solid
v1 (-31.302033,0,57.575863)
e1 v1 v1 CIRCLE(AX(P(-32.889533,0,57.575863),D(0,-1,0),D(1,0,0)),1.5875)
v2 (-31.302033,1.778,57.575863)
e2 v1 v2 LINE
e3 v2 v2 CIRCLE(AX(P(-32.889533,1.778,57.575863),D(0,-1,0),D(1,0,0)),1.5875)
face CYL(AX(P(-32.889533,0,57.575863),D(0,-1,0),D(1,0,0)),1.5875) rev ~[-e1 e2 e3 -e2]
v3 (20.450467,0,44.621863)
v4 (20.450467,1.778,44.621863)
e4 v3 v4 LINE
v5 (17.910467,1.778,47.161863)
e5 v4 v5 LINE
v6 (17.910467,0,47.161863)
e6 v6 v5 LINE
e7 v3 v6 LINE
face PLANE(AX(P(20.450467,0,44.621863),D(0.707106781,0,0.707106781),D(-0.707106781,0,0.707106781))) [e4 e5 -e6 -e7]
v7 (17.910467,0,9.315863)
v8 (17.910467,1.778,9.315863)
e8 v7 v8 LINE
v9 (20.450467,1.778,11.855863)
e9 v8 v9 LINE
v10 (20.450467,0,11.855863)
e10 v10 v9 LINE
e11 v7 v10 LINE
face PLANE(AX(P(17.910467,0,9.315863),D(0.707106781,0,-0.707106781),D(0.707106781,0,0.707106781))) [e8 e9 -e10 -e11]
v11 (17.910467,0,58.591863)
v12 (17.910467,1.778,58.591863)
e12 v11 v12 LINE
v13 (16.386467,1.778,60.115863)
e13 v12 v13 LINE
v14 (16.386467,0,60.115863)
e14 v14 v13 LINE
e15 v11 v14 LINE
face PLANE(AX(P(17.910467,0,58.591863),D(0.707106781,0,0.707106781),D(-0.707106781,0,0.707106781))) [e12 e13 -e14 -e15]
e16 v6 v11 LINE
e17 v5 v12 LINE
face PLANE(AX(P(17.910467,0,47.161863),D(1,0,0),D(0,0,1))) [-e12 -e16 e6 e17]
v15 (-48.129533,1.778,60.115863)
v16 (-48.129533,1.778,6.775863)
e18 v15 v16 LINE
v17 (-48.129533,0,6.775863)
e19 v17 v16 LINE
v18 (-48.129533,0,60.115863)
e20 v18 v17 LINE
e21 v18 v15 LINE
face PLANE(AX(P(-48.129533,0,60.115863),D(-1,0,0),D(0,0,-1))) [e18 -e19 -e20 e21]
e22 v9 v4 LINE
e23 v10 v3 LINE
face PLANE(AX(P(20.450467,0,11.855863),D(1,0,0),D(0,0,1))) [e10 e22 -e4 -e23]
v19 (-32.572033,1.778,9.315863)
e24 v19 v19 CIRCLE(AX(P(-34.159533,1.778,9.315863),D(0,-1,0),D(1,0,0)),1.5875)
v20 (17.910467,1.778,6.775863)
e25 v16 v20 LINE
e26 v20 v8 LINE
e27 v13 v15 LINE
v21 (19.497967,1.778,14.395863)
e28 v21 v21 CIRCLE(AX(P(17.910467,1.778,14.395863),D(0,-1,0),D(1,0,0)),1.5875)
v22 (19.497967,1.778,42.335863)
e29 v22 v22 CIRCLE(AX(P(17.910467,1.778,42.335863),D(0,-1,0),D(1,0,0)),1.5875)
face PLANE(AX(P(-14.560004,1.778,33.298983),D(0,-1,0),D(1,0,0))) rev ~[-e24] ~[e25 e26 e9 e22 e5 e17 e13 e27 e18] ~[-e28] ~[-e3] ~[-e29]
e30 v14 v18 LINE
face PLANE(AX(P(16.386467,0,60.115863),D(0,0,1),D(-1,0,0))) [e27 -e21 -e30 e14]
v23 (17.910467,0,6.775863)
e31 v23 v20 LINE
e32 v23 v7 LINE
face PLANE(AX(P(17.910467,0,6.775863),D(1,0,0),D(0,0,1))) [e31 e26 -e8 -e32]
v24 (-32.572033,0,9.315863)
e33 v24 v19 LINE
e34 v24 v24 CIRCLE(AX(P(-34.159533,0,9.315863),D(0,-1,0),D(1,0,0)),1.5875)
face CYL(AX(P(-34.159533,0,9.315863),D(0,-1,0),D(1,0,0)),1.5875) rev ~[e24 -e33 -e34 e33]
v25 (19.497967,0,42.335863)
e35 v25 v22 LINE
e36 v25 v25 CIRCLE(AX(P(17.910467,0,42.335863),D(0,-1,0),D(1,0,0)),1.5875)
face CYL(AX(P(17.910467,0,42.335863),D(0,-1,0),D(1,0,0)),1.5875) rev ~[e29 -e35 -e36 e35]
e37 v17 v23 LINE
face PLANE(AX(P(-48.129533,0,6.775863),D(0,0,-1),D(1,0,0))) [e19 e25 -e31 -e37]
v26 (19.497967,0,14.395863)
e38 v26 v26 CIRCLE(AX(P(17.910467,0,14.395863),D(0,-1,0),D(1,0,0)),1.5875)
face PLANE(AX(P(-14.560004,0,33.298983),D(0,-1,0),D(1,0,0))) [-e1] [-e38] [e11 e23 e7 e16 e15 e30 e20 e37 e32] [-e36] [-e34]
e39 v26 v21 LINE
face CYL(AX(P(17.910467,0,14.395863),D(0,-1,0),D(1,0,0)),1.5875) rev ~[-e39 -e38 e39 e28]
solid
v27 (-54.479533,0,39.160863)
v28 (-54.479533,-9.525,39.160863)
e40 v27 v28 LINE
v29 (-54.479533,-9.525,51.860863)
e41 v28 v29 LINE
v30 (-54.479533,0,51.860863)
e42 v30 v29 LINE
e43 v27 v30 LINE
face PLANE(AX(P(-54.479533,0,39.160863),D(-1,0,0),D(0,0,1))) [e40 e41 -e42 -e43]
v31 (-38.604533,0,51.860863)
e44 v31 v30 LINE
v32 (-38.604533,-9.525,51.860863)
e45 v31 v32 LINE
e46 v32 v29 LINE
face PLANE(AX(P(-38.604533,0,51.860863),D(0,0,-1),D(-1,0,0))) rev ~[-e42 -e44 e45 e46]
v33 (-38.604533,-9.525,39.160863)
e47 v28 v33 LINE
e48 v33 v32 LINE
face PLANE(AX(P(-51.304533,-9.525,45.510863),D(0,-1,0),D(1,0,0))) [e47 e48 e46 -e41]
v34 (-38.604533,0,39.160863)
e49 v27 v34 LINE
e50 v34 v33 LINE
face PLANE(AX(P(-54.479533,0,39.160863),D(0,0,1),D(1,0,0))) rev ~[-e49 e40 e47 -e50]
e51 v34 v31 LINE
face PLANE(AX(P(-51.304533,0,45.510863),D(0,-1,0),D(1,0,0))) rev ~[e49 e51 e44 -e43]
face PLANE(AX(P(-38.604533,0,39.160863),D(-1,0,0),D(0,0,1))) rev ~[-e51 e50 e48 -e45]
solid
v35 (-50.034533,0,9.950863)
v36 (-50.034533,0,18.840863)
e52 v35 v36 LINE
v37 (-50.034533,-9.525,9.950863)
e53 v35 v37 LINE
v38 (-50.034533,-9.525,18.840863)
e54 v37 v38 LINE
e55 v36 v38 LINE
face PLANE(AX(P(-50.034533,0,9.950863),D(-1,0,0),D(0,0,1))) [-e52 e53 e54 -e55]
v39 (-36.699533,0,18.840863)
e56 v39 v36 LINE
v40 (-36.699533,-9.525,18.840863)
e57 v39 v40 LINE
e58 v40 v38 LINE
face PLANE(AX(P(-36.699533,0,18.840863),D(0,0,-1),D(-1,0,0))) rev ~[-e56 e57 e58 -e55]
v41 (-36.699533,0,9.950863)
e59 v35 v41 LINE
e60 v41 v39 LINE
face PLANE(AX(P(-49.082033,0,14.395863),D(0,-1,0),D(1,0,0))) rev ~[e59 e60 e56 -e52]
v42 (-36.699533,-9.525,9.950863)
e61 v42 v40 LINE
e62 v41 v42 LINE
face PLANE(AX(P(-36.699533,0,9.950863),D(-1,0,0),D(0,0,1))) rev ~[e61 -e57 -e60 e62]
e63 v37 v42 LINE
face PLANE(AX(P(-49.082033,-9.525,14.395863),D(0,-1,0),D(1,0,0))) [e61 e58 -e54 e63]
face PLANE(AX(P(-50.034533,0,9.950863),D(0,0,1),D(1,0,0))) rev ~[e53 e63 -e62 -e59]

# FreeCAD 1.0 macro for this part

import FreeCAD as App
import Part
import Sketcher
Q = App.Units.Quantity

doc = App.newDocument("Part")
body = doc.addObject("PartDesign::Body", "Body")

sketch1 = body.newObject("Sketcher::SketchObject", "Sketch")
sketch1.AttachmentSupport = (doc.getObject("XZ_Plane"), [""])
sketch1.MapMode = "FlatFace"
sketch1.addGeometry([
    Part.LineSegment(App.Vector(16.4, 60.1, 0), App.Vector(-48.1, 60.1, 0)),
    Part.LineSegment(App.Vector(-48.1, 60.1, 0), App.Vector(-48.1, 6.8, 0)),
    Part.LineSegment(App.Vector(-48.1, 6.8, 0), App.Vector(17.9, 6.8, 0)),
    Part.LineSegment(App.Vector(17.9, 6.8, 0), App.Vector(17.9, 9.3, 0)),
    Part.LineSegment(App.Vector(17.9, 9.3, 0), App.Vector(20.5, 11.9, 0)),
    Part.LineSegment(App.Vector(20.5, 11.9, 0), App.Vector(20.5, 44.6, 0)),
    Part.LineSegment(App.Vector(20.5, 44.6, 0), App.Vector(17.9, 47.2, 0)),
    Part.LineSegment(App.Vector(17.9, 47.2, 0), App.Vector(17.9, 58.6, 0)),
    Part.LineSegment(App.Vector(17.9, 58.6, 0), App.Vector(16.4, 60.1, 0)),
    Part.Circle(App.Vector(-34.2, 9.3, 0), App.Vector(0, 0, 1), 1.6),
    Part.Circle(App.Vector(17.9, 14.4, 0), App.Vector(0, 0, 1), 1.6),
    Part.Circle(App.Vector(-32.9, 57.6, 0), App.Vector(0, 0, 1), 1.6),
    Part.Circle(App.Vector(17.9, 42.3, 0), App.Vector(0, 0, 1), 1.6),
], False)
sketch1.addConstraint([
    Sketcher.Constraint("Coincident", 0, 2, 1, 1),
    Sketcher.Constraint("Coincident", 1, 2, 2, 1),
    Sketcher.Constraint("Coincident", 2, 2, 3, 1),
    Sketcher.Constraint("Coincident", 3, 2, 4, 1),
    Sketcher.Constraint("Coincident", 4, 2, 5, 1),
    Sketcher.Constraint("Coincident", 5, 2, 6, 1),
    Sketcher.Constraint("Coincident", 6, 2, 7, 1),
    Sketcher.Constraint("Coincident", 7, 2, 8, 1),
    Sketcher.Constraint("Coincident", 8, 2, 0, 1),
    Sketcher.Constraint("Horizontal", 0),
    Sketcher.Constraint("Vertical", 1),
    Sketcher.Constraint("Horizontal", 2),
    Sketcher.Constraint("Vertical", 3),
    Sketcher.Constraint("Vertical", 5),
    Sketcher.Constraint("Vertical", 7),
    Sketcher.Constraint("Equal", 9, 10),
    Sketcher.Constraint("Equal", 10, 11),
    Sketcher.Constraint("Equal", 11, 12),
    Sketcher.Constraint("Perpendicular", 4, 6),
    Sketcher.Constraint("Parallel", 6, 8),
    Sketcher.Constraint("Horizontal", 9, 3, 3, 2),
    Sketcher.Constraint("Vertical", 10, 3, 12, 3),
    Sketcher.Constraint("Vertical", 12, 3, 2, 2),
    Sketcher.Constraint("Vertical", 3, 2, 6, 2),
    Sketcher.Constraint("Equal", 4, 6),
    Sketcher.Constraint("Diameter", 9, Q("0.125 in")),
    Sketcher.Constraint("DistanceX", 2, 1, 2, 2, Q("2.6 in")),
    Sketcher.Constraint("DistanceY", 1, 2, 1, 1, Q("2.1 in")),
    Sketcher.Constraint("DistanceY", 3, 1, 3, 2, Q("0.1 in")),
    Sketcher.Constraint("DistanceX", 11, 3, 10, 3, Q("2 in")),
    Sketcher.Constraint("DistanceY", 1, 2, 11, 3, Q("2 in")),
    Sketcher.Constraint("DistanceX", 0, 2, 0, 1, Q("2.54 in")),
    Sketcher.Constraint("DistanceY", 5, 1, 5, 2, Q("1.29 in")),
    Sketcher.Constraint("DistanceY", 7, 1, 7, 2, Q("0.45 in")),
    Sketcher.Constraint("DistanceY", 9, 3, 10, 3, Q("0.2 in")),
    Sketcher.Constraint("DistanceY", 10, 3, 12, 3, Q("1.1 in")),
    Sketcher.Constraint("DistanceX", 9, 3, 10, 3, Q("2.05 in")),
    Sketcher.Constraint("DistanceX", 9, 3, -1, 1, 34.159533),
    Sketcher.Constraint("DistanceY", -1, 1, 9, 3, 9.315863),
])
pad1 = body.newObject("PartDesign::Pad", "Pad")
pad1.Profile = sketch1
pad1.Length = Q("0.07 in")
pad1.Reversed = True
body2 = doc.addObject("PartDesign::Body", "Body001")

sketch2 = body2.newObject("Sketcher::SketchObject", "Sketch001")
sketch2.AttachmentSupport = (doc.getObject("XZ_Plane001"), [""])
sketch2.MapMode = "FlatFace"
sketch2.addGeometry([
    Part.LineSegment(App.Vector(-54, 52, 0), App.Vector(-54, 39, 0)),
    Part.LineSegment(App.Vector(-54, 39, 0), App.Vector(-39, 39, 0)),
    Part.LineSegment(App.Vector(-39, 39, 0), App.Vector(-39, 52, 0)),
    Part.LineSegment(App.Vector(-39, 52, 0), App.Vector(-54, 52, 0)),
], False)
sketch2.addConstraint([
    Sketcher.Constraint("Coincident", 0, 2, 1, 1),
    Sketcher.Constraint("Coincident", 1, 2, 2, 1),
    Sketcher.Constraint("Coincident", 2, 2, 3, 1),
    Sketcher.Constraint("Coincident", 3, 2, 0, 1),
    Sketcher.Constraint("Vertical", 0),
    Sketcher.Constraint("Horizontal", 1),
    Sketcher.Constraint("Vertical", 2),
    Sketcher.Constraint("Horizontal", 3),
    Sketcher.Constraint("DistanceY", 0, 2, 0, 1, Q("0.5 in")),
    Sketcher.Constraint("DistanceX", 1, 1, 1, 2, Q("0.625 in")),
    Sketcher.Constraint("DistanceX", 0, 2, -1, 1, 54.479533),
    Sketcher.Constraint("DistanceY", -1, 1, 0, 2, 39.160863),
])
pad2 = body2.newObject("PartDesign::Pad", "Pad001")
pad2.Profile = sketch2
pad2.Length = Q("0.375 in")
body3 = doc.addObject("PartDesign::Body", "Body002")

sketch3 = body3.newObject("Sketcher::SketchObject", "Sketch002")
sketch3.AttachmentSupport = (doc.getObject("XZ_Plane002"), [""])
sketch3.MapMode = "FlatFace"
sketch3.addGeometry([
    Part.LineSegment(App.Vector(-50, 19, 0), App.Vector(-50, 10, 0)),
    Part.LineSegment(App.Vector(-50, 10, 0), App.Vector(-37, 10, 0)),
    Part.LineSegment(App.Vector(-37, 10, 0), App.Vector(-37, 19, 0)),
    Part.LineSegment(App.Vector(-37, 19, 0), App.Vector(-50, 19, 0)),
], False)
sketch3.addConstraint([
    Sketcher.Constraint("Coincident", 0, 2, 1, 1),
    Sketcher.Constraint("Coincident", 1, 2, 2, 1),
    Sketcher.Constraint("Coincident", 2, 2, 3, 1),
    Sketcher.Constraint("Coincident", 3, 2, 0, 1),
    Sketcher.Constraint("Vertical", 0),
    Sketcher.Constraint("Horizontal", 1),
    Sketcher.Constraint("Vertical", 2),
    Sketcher.Constraint("Horizontal", 3),
    Sketcher.Constraint("DistanceY", 0, 2, 0, 1, Q("0.35 in")),
    Sketcher.Constraint("DistanceX", 1, 1, 1, 2, Q("0.525 in")),
    Sketcher.Constraint("DistanceX", 0, 2, -1, 1, 50.034533),
    Sketcher.Constraint("DistanceY", -1, 1, 0, 2, 9.950863),
])
pad3 = body3.newObject("PartDesign::Pad", "Pad002")
pad3.Profile = sketch3
pad3.Length = Q("0.375 in")

doc.recompute()
